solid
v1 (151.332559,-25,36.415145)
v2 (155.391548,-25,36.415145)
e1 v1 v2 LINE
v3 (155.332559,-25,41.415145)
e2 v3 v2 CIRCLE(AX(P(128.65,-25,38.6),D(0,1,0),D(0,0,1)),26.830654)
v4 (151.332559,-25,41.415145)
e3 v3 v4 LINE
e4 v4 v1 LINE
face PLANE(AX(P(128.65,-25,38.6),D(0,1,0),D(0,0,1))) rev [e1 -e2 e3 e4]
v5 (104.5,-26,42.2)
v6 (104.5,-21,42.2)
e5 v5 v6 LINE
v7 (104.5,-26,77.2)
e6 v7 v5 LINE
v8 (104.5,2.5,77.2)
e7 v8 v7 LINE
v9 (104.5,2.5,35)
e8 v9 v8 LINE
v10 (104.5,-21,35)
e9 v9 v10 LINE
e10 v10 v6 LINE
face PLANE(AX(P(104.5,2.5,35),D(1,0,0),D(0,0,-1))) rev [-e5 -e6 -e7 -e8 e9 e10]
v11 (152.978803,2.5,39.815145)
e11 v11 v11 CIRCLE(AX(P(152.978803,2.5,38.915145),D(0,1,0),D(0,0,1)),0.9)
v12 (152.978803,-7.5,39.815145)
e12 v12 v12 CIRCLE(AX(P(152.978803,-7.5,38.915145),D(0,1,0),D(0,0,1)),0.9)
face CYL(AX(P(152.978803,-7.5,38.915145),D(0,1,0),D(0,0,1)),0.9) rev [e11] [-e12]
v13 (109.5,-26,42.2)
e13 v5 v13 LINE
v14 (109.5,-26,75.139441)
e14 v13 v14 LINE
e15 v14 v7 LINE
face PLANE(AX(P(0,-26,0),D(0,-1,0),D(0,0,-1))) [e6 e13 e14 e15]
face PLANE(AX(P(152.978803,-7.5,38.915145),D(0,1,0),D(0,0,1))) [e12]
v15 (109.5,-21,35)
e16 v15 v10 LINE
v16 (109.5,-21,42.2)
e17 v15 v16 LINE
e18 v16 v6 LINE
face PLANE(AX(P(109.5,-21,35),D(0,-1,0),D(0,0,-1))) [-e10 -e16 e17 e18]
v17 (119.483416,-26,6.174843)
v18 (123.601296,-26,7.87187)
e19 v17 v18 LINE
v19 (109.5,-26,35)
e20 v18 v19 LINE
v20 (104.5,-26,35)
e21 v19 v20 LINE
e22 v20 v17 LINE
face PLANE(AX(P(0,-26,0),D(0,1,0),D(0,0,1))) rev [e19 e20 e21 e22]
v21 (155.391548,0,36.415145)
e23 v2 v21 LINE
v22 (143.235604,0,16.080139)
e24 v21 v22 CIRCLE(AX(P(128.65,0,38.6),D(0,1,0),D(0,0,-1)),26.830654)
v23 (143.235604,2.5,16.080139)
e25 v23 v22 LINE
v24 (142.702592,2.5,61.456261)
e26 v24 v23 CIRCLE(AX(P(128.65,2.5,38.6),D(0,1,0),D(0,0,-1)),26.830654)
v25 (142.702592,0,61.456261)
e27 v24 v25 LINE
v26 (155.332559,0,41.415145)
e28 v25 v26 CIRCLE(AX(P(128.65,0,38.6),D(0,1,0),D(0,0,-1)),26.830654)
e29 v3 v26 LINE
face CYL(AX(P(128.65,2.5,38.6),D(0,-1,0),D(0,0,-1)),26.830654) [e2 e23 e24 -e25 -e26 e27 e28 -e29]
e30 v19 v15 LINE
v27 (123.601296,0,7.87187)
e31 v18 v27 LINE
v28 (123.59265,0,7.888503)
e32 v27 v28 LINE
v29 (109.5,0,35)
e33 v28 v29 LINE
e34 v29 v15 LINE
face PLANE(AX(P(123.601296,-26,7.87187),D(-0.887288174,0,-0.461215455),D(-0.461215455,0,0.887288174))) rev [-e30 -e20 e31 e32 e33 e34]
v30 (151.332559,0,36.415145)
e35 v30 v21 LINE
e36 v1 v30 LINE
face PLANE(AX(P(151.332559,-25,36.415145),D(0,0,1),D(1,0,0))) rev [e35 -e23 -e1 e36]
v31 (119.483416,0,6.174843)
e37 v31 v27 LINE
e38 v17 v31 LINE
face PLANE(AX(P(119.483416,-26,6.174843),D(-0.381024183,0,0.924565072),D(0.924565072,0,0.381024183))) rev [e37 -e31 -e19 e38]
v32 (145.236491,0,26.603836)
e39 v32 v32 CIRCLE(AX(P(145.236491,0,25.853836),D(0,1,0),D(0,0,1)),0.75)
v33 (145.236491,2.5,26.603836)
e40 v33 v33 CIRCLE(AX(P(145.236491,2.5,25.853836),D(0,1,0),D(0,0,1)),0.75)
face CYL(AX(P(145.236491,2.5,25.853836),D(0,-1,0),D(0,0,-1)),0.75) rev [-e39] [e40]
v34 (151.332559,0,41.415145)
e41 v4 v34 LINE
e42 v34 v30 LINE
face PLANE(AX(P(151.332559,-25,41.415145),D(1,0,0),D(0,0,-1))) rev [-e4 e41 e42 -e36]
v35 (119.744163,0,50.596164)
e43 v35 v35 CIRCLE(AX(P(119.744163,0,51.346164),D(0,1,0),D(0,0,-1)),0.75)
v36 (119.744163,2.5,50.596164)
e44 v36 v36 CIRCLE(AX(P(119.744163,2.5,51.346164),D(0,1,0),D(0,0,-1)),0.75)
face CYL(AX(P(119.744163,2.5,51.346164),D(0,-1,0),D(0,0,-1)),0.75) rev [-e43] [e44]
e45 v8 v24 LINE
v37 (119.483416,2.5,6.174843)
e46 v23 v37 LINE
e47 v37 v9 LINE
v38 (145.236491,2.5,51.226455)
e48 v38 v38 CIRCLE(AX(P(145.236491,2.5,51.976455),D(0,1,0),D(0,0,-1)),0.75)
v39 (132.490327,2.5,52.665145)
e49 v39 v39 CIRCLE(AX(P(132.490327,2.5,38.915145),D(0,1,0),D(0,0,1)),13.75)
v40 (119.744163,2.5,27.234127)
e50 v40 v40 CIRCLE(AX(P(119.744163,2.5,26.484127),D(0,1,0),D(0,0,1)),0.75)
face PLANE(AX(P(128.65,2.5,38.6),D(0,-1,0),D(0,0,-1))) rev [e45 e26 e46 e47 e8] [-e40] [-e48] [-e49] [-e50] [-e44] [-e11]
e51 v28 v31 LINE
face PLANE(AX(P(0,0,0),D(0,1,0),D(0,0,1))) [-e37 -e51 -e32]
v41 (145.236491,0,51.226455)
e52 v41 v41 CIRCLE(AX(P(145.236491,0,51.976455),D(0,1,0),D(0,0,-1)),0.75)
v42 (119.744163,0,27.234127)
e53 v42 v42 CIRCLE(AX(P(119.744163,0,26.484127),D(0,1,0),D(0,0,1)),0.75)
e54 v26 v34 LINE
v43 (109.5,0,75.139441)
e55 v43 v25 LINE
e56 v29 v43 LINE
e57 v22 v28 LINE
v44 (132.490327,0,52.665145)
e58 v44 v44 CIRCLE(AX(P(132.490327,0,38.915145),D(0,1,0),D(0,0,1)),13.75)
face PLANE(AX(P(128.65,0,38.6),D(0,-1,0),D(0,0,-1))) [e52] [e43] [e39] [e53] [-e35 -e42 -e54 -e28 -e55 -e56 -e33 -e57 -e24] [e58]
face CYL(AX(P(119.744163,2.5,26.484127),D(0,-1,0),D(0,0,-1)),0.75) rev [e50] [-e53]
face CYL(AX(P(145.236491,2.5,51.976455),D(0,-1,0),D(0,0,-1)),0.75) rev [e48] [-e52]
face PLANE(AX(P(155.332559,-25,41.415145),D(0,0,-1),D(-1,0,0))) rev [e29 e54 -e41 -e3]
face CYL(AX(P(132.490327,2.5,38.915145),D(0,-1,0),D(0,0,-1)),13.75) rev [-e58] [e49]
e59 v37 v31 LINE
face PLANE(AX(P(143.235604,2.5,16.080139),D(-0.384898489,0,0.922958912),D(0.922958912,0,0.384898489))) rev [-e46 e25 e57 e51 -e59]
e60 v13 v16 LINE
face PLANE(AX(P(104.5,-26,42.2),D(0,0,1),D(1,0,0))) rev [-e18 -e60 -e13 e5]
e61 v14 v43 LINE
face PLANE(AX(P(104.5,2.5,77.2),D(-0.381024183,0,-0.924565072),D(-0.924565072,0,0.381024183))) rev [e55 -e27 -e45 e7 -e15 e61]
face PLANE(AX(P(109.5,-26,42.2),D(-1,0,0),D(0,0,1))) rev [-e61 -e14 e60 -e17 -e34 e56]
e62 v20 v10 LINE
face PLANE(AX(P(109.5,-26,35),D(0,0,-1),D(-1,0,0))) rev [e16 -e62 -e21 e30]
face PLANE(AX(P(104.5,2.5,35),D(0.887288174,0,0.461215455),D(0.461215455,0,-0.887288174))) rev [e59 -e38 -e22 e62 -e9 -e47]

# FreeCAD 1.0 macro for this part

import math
import FreeCAD as App
import Part
import Sketcher
Q = App.Units.Quantity


def add_polygon(sketch, points):
    """Adds a closed chain of lines whose ends are joined by coincident constraints."""
    first, n = sketch.GeometryCount, len(points)
    for a, b in zip(points, points[1:] + points[:1]):
        sketch.addGeometry(Part.LineSegment(App.Vector(*a, 0), App.Vector(*b, 0)), False)
    for i in range(n):
        sketch.addConstraint(Sketcher.Constraint("Coincident", first + i, 2, first + (i + 1) % n, 1))

doc = App.newDocument("Part")
body = doc.addObject("PartDesign::Body", "Body")

# Sketch on XZ plane
sketch1 = body.newObject("Sketcher::SketchObject", "Sketch")
sketch1.AttachmentSupport = (doc.getObject("XZ_Plane"), [""])
sketch1.MapMode = "FlatFace"
sketch1.addGeometry([
    Part.LineSegment(App.Vector(104.5, 77.2, 0), App.Vector(142.7, 61.5, 0)),  # 0
    Part.ArcOfCircle(Part.Circle(App.Vector(128.6, 38.6, 0), App.Vector(0, 0, 1), 26.8), math.radians(-57), math.radians(58)),  # 1
    Part.LineSegment(App.Vector(143.2, 16.1, 0), App.Vector(119.5, 6.2, 0)),  # 2
    Part.LineSegment(App.Vector(119.5, 6.2, 0), App.Vector(104.5, 35, 0)),  # 3
    Part.LineSegment(App.Vector(104.5, 35, 0), App.Vector(104.5, 77.2, 0)),  # 4
    Part.Circle(App.Vector(119.7, 51.3, 0), App.Vector(0, 0, 1), 0.8),  # 5
    Part.Circle(App.Vector(145.2, 52, 0), App.Vector(0, 0, 1), 0.8),  # 6
    Part.Circle(App.Vector(132.5, 38.9, 0), App.Vector(0, 0, 1), 13.8),  # 7
    Part.Circle(App.Vector(119.7, 26.5, 0), App.Vector(0, 0, 1), 0.8),  # 8
    Part.Circle(App.Vector(145.2, 25.9, 0), App.Vector(0, 0, 1), 0.8),  # 9
], False)
sketch1.addConstraint([
    Sketcher.Constraint("Coincident", 0, 2, 1, 2),
    Sketcher.Constraint("Coincident", 1, 1, 2, 1),
    Sketcher.Constraint("Coincident", 2, 2, 3, 1),
    Sketcher.Constraint("Coincident", 3, 2, 4, 1),
    Sketcher.Constraint("Coincident", 4, 2, 0, 1),
    Sketcher.Constraint("Vertical", 4),
    Sketcher.Constraint("Equal", 5, 6),
    Sketcher.Constraint("Equal", 6, 8),
    Sketcher.Constraint("Equal", 8, 9),
    Sketcher.Constraint("Vertical", 5, 3, 8, 3),
    Sketcher.Constraint("Vertical", 6, 3, 9, 3),
    Sketcher.Constraint("Diameter", 5, Q("1.5 mm")),
    Sketcher.Constraint("Diameter", 7, Q("27.5 mm")),
    Sketcher.Constraint("DistanceY", 4, 1, 4, 2, Q("42.2 mm")),
    Sketcher.Constraint("DistanceY", -1, 1, 3, 2, Q("35 mm")),
    Sketcher.Constraint("DistanceY", -1, 1, 1, 3, Q("38.6 mm")),
    Sketcher.Constraint("DistanceX", -1, 1, 3, 2, Q("104.5 mm")),
    Sketcher.Constraint("DistanceX", -1, 1, 1, 3, Q("128.65 mm")),
    Sketcher.Constraint("Radius", 1, Q("26.830654 mm")),
    Sketcher.Constraint("DistanceX", 0, 2, 6, 3, Q("2.533899 mm")),
    Sketcher.Constraint("DistanceX", -1, 1, 6, 3, Q("145.236491 mm")),
    Sketcher.Constraint("DistanceY", -1, 1, 1, 1, Q("16.080139 mm")),
    Sketcher.Constraint("DistanceX", 5, 3, 6, 3, Q("25.492328 mm")),
    Sketcher.Constraint("DistanceY", 5, 3, 6, 3, Q("0.630291 mm")),
    Sketcher.Constraint("DistanceY", 7, 3, 5, 3, Q("12.431019 mm")),
    Sketcher.Constraint("DistanceY", 8, 3, 7, 3, Q("12.431019 mm")),
    Sketcher.Constraint("DistanceY", 9, 3, 7, 3, Q("13.061309 mm")),
    Sketcher.Constraint("DistanceY", 1, 1, 8, 3, Q("10.403988 mm")),
    Sketcher.Constraint("DistanceX", 2, 2, 7, 3, Q("13.006911 mm")),
    Sketcher.Constraint("Distance", 2, Q("25.734826 mm")),
    Sketcher.Constraint("Distance", 3, Q("32.486804 mm")),
])
pad1 = body.newObject("PartDesign::Pad", "Pad")
pad1.Profile = sketch1
pad1.Length = 2.5
pad1.Reversed = True

# Sketch on XZ plane
sketch2 = body.newObject("Sketcher::SketchObject", "Sketch001")
sketch2.AttachmentSupport = (doc.getObject("XZ_Plane"), [""])
sketch2.MapMode = "FlatFace"
add_polygon(sketch2, [(104.5, 42.2), (109.5, 42.2), (109.5, 75.1), (104.5, 77.2)])  # lines 0-3
add_polygon(sketch2, [(109.5, 35), (104.5, 35), (119.5, 6.2), (123.6, 7.9)])  # lines 4-7
sketch2.addConstraint([
    Sketcher.Constraint("Horizontal", 0),
    Sketcher.Constraint("Vertical", 1),
    Sketcher.Constraint("Vertical", 3),
    Sketcher.Constraint("Horizontal", 4),
    Sketcher.Constraint("Parallel", 5, 7),
    Sketcher.Constraint("Vertical", 3, 2, 4, 2),
    Sketcher.Constraint("Vertical", 1, 2, 7, 2),
    Sketcher.Constraint("DistanceX", 0, 1, 0, 2, Q("5 mm")),
    Sketcher.Constraint("DistanceY", 3, 2, 3, 1, Q("35 mm")),
    Sketcher.Constraint("DistanceY", -1, 1, 4, 2, Q("35 mm")),
    Sketcher.Constraint("DistanceX", -1, 1, 0, 2, Q("109.5 mm")),
    Sketcher.Constraint("DistanceY", -1, 1, 0, 2, Q("42.2 mm")),
    Sketcher.Constraint("DistanceY", 1, 1, 1, 2, Q("32.939441 mm")),
    Sketcher.Constraint("DistanceY", 5, 2, 1, 2, Q("68.964598 mm")),
    Sketcher.Constraint("DistanceY", -1, 1, 6, 2, Q("7.87187 mm")),
    Sketcher.Constraint("DistanceX", 5, 2, 6, 2, Q("4.11788 mm")),
])
pad2 = body.newObject("PartDesign::Pad", "Pad001")
pad2.Profile = sketch2
pad2.Length = 26

# Sketch on YZ plane
sketch3 = body.newObject("Sketcher::SketchObject", "Sketch002")
sketch3.AttachmentSupport = (doc.getObject("YZ_Plane"), [""])
sketch3.MapMode = "FlatFace"
sketch3.AttachmentOffset = App.Placement(App.Vector(0, 0, 104.5), App.Rotation())
add_polygon(sketch3, [(0, 35), (-21, 35), (-21, 42), (0, 42)])  # lines 0-3
sketch3.addConstraint([
    Sketcher.Constraint("Horizontal", 0),
    Sketcher.Constraint("Vertical", 1),
    Sketcher.Constraint("Horizontal", 2),
    Sketcher.Constraint("Vertical", 3),
    Sketcher.Constraint("PointOnObject", 2, 2, -2),
    Sketcher.Constraint("DistanceX", 0, 2, 0, 1, Q("21 mm")),
    Sketcher.Constraint("DistanceY", 1, 1, 1, 2, Q("7.2 mm")),
    Sketcher.Constraint("DistanceY", -1, 1, 0, 2, Q("35 mm")),
])
pad3 = body.newObject("PartDesign::Pad", "Pad002")
pad3.Profile = sketch3
pad3.Length = 5

# Sketch on XZ plane
sketch4 = body.newObject("Sketcher::SketchObject", "Sketch003")
sketch4.AttachmentSupport = (doc.getObject("XZ_Plane"), [""])
sketch4.MapMode = "FlatFace"
sketch4.addGeometry([
    Part.LineSegment(App.Vector(155.3, 41.4, 0), App.Vector(151.3, 41.4, 0)),
    Part.LineSegment(App.Vector(151.3, 41.4, 0), App.Vector(151.3, 36.4, 0)),
    Part.LineSegment(App.Vector(151.3, 36.4, 0), App.Vector(155.4, 36.4, 0)),
    Part.ArcOfCircle(Part.Circle(App.Vector(128.6, 38.6, 0), App.Vector(0, 0, 1), 26.8), math.radians(-4.67), math.radians(6.02)),
], False)
sketch4.addConstraint([
    Sketcher.Constraint("Coincident", 0, 2, 1, 1),
    Sketcher.Constraint("Coincident", 1, 2, 2, 1),
    Sketcher.Constraint("Coincident", 2, 2, 3, 1),
    Sketcher.Constraint("Coincident", 3, 2, 0, 1),
    Sketcher.Constraint("Horizontal", 0),
    Sketcher.Constraint("Vertical", 1),
    Sketcher.Constraint("Horizontal", 2),
    Sketcher.Constraint("DistanceX", 0, 2, 0, 1, Q("4 mm")),
    Sketcher.Constraint("DistanceY", 1, 2, 1, 1, Q("5 mm")),
    Sketcher.Constraint("DistanceY", -1, 1, 3, 3, Q("38.6 mm")),
    Sketcher.Constraint("DistanceX", -1, 1, 3, 3, Q("128.65 mm")),
    Sketcher.Constraint("Radius", 3, Q("26.830654 mm")),
    Sketcher.Constraint("DistanceX", 2, 1, 2, 2, Q("4.058989 mm")),
])
pad4 = body.newObject("PartDesign::Pad", "Pad003")
pad4.Profile = sketch4
pad4.Length = 25

# Sketch on XZ plane
sketch5 = body.newObject("Sketcher::SketchObject", "Sketch004")
sketch5.AttachmentSupport = (doc.getObject("XZ_Plane"), [""])
sketch5.MapMode = "FlatFace"
sketch5.AttachmentOffset = App.Placement(App.Vector(0, 0, -2.5), App.Rotation())
sketch5.addGeometry(Part.Circle(App.Vector(153, 38.9, 0), App.Vector(0, 0, 1), 0.9), False)
sketch5.addConstraint([
    Sketcher.Constraint("Diameter", 0, Q("1.8 mm")),
    Sketcher.Constraint("DistanceX", -1, 1, 0, 3, Q("152.978803 mm")),
    Sketcher.Constraint("DistanceY", -1, 1, 0, 3, Q("38.915145 mm")),
])
pocket1 = body.newObject("PartDesign::Pocket", "Pocket")
pocket1.Profile = sketch5
pocket1.Length = 10
pocket1.Reversed = True

doc.recompute()
